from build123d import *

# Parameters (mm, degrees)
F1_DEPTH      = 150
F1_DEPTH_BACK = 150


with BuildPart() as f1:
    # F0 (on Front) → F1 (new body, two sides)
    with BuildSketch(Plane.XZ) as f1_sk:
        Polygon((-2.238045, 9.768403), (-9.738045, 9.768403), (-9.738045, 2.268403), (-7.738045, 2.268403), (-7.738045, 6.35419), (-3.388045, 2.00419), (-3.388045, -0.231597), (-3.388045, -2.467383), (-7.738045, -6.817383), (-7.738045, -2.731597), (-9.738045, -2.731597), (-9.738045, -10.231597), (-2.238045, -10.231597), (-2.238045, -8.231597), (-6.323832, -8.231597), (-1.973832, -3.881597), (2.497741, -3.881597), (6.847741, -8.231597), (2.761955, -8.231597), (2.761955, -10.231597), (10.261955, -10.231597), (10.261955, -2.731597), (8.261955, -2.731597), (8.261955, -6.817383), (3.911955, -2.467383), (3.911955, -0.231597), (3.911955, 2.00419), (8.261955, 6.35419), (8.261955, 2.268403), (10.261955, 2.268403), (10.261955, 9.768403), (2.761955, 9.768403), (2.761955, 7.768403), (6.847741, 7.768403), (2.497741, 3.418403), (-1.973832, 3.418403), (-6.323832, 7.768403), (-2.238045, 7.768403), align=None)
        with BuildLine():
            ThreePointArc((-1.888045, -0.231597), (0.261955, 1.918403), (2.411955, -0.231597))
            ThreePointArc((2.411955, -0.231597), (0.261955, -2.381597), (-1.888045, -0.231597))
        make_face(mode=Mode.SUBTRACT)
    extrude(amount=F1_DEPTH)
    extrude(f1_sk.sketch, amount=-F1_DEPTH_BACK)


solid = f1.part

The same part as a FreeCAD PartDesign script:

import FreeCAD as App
import Part
import Sketcher

V = App.Vector

doc = App.newDocument("Part")
params = doc.addObject("Spreadsheet::Sheet", "Params")
for row, (alias, value) in enumerate([
    ("sketch1_diameter", "4.3 mm"),
    ("sketch1_width", "2 mm"),
    ("sketch1_width2", "7.5 mm"),
    ("pad1_length", "150 mm"),
    ("pad1_length2", "150 mm"),
], start=1):
    params.set(f"A{row}", alias)
    params.set(f"B{row}", "=" + value)
    params.setAlias(f"B{row}", alias)

body = doc.addObject("PartDesign::Body", "Body")

# Sketch on XZ plane
sketch1 = body.newObject("Sketcher::SketchObject", "Sketch")
sketch1.AttachmentSupport = (doc.getObject("XZ_Plane"), [""])
sketch1.MapMode = "FlatFace"
sketch1.addGeometry(Part.LineSegment(V(-2.2, 9.8, 0), V(-9.7, 9.8, 0)), False)
sketch1.addGeometry(Part.LineSegment(V(-9.7, 9.8, 0), V(-9.7, 2.3, 0)), False)
sketch1.addGeometry(Part.LineSegment(V(-9.7, 2.3, 0), V(-7.7, 2.3, 0)), False)
sketch1.addGeometry(Part.LineSegment(V(-7.7, 2.3, 0), V(-7.7, 6.4, 0)), False)
sketch1.addGeometry(Part.LineSegment(V(-7.7, 6.4, 0), V(-3.4, 2, 0)), False)
sketch1.addGeometry(Part.LineSegment(V(-3.4, 2, 0), V(-3.4, -2.5, 0)), False)
sketch1.addGeometry(Part.LineSegment(V(-3.4, -2.5, 0), V(-7.7, -6.8, 0)), False)
sketch1.addGeometry(Part.LineSegment(V(-7.7, -6.8, 0), V(-7.7, -2.7, 0)), False)
sketch1.addGeometry(Part.LineSegment(V(-7.7, -2.7, 0), V(-9.7, -2.7, 0)), False)
sketch1.addGeometry(Part.LineSegment(V(-9.7, -2.7, 0), V(-9.7, -10.2, 0)), False)
sketch1.addGeometry(Part.LineSegment(V(-9.7, -10.2, 0), V(-2.2, -10.2, 0)), False)
sketch1.addGeometry(Part.LineSegment(V(-2.2, -10.2, 0), V(-2.2, -8.2, 0)), False)
sketch1.addGeometry(Part.LineSegment(V(-2.2, -8.2, 0), V(-6.3, -8.2, 0)), False)
sketch1.addGeometry(Part.LineSegment(V(-6.3, -8.2, 0), V(-2, -3.9, 0)), False)
sketch1.addGeometry(Part.LineSegment(V(-2, -3.9, 0), V(2.5, -3.9, 0)), False)
sketch1.addGeometry(Part.LineSegment(V(2.5, -3.9, 0), V(6.8, -8.2, 0)), False)
sketch1.addGeometry(Part.LineSegment(V(6.8, -8.2, 0), V(2.8, -8.2, 0)), False)
sketch1.addGeometry(Part.LineSegment(V(2.8, -8.2, 0), V(2.8, -10.2, 0)), False)
sketch1.addGeometry(Part.LineSegment(V(2.8, -10.2, 0), V(10.3, -10.2, 0)), False)
sketch1.addGeometry(Part.LineSegment(V(10.3, -10.2, 0), V(10.3, -2.7, 0)), False)
sketch1.addGeometry(Part.LineSegment(V(10.3, -2.7, 0), V(8.3, -2.7, 0)), False)
sketch1.addGeometry(Part.LineSegment(V(8.3, -2.7, 0), V(8.3, -6.8, 0)), False)
sketch1.addGeometry(Part.LineSegment(V(8.3, -6.8, 0), V(3.9, -2.5, 0)), False)
sketch1.addGeometry(Part.LineSegment(V(3.9, -2.5, 0), V(3.9, 2, 0)), False)
sketch1.addGeometry(Part.LineSegment(V(3.9, 2, 0), V(8.3, 6.4, 0)), False)
sketch1.addGeometry(Part.LineSegment(V(8.3, 6.4, 0), V(8.3, 2.3, 0)), False)
sketch1.addGeometry(Part.LineSegment(V(8.3, 2.3, 0), V(10.3, 2.3, 0)), False)
sketch1.addGeometry(Part.LineSegment(V(10.3, 2.3, 0), V(10.3, 9.8, 0)), False)
sketch1.addGeometry(Part.LineSegment(V(10.3, 9.8, 0), V(2.8, 9.8, 0)), False)
sketch1.addGeometry(Part.LineSegment(V(2.8, 9.8, 0), V(2.8, 7.8, 0)), False)
sketch1.addGeometry(Part.LineSegment(V(2.8, 7.8, 0), V(6.8, 7.8, 0)), False)
sketch1.addGeometry(Part.LineSegment(V(6.8, 7.8, 0), V(2.5, 3.4, 0)), False)
sketch1.addGeometry(Part.LineSegment(V(2.5, 3.4, 0), V(-2, 3.4, 0)), False)
sketch1.addGeometry(Part.LineSegment(V(-2, 3.4, 0), V(-6.3, 7.8, 0)), False)
sketch1.addGeometry(Part.LineSegment(V(-6.3, 7.8, 0), V(-2.2, 7.8, 0)), False)
sketch1.addGeometry(Part.LineSegment(V(-2.2, 7.8, 0), V(-2.2, 9.8, 0)), False)
sketch1.addGeometry(Part.Circle(V(0.3, -0.2, 0), V(0, 0, 1), 2.1), False)
sketch1.addConstraint(Sketcher.Constraint("Coincident", 0, 2, 1, 1))
sketch1.addConstraint(Sketcher.Constraint("Coincident", 1, 2, 2, 1))
sketch1.addConstraint(Sketcher.Constraint("Coincident", 2, 2, 3, 1))
sketch1.addConstraint(Sketcher.Constraint("Coincident", 3, 2, 4, 1))
sketch1.addConstraint(Sketcher.Constraint("Coincident", 4, 2, 5, 1))
sketch1.addConstraint(Sketcher.Constraint("Coincident", 5, 2, 6, 1))
sketch1.addConstraint(Sketcher.Constraint("Coincident", 6, 2, 7, 1))
sketch1.addConstraint(Sketcher.Constraint("Coincident", 7, 2, 8, 1))
sketch1.addConstraint(Sketcher.Constraint("Coincident", 8, 2, 9, 1))
sketch1.addConstraint(Sketcher.Constraint("Coincident", 9, 2, 10, 1))
sketch1.addConstraint(Sketcher.Constraint("Coincident", 10, 2, 11, 1))
sketch1.addConstraint(Sketcher.Constraint("Coincident", 11, 2, 12, 1))
sketch1.addConstraint(Sketcher.Constraint("Coincident", 12, 2, 13, 1))
sketch1.addConstraint(Sketcher.Constraint("Coincident", 13, 2, 14, 1))
sketch1.addConstraint(Sketcher.Constraint("Coincident", 14, 2, 15, 1))
sketch1.addConstraint(Sketcher.Constraint("Coincident", 15, 2, 16, 1))
sketch1.addConstraint(Sketcher.Constraint("Coincident", 16, 2, 17, 1))
sketch1.addConstraint(Sketcher.Constraint("Coincident", 17, 2, 18, 1))
sketch1.addConstraint(Sketcher.Constraint("Coincident", 18, 2, 19, 1))
sketch1.addConstraint(Sketcher.Constraint("Coincident", 19, 2, 20, 1))
sketch1.addConstraint(Sketcher.Constraint("Coincident", 20, 2, 21, 1))
sketch1.addConstraint(Sketcher.Constraint("Coincident", 21, 2, 22, 1))
sketch1.addConstraint(Sketcher.Constraint("Coincident", 22, 2, 23, 1))
sketch1.addConstraint(Sketcher.Constraint("Coincident", 23, 2, 24, 1))
sketch1.addConstraint(Sketcher.Constraint("Coincident", 24, 2, 25, 1))
sketch1.addConstraint(Sketcher.Constraint("Coincident", 25, 2, 26, 1))
sketch1.addConstraint(Sketcher.Constraint("Coincident", 26, 2, 27, 1))
sketch1.addConstraint(Sketcher.Constraint("Coincident", 27, 2, 28, 1))
sketch1.addConstraint(Sketcher.Constraint("Coincident", 28, 2, 29, 1))
sketch1.addConstraint(Sketcher.Constraint("Coincident", 29, 2, 30, 1))
sketch1.addConstraint(Sketcher.Constraint("Coincident", 30, 2, 31, 1))
sketch1.addConstraint(Sketcher.Constraint("Coincident", 31, 2, 32, 1))
sketch1.addConstraint(Sketcher.Constraint("Coincident", 32, 2, 33, 1))
sketch1.addConstraint(Sketcher.Constraint("Coincident", 33, 2, 34, 1))
sketch1.addConstraint(Sketcher.Constraint("Coincident", 34, 2, 35, 1))
sketch1.addConstraint(Sketcher.Constraint("Coincident", 35, 2, 0, 1))
sketch1.addConstraint(Sketcher.Constraint("Horizontal", 0))
sketch1.addConstraint(Sketcher.Constraint("Vertical", 1))
sketch1.addConstraint(Sketcher.Constraint("Horizontal", 2))
sketch1.addConstraint(Sketcher.Constraint("Vertical", 3))
sketch1.addConstraint(Sketcher.Constraint("Vertical", 5))
sketch1.addConstraint(Sketcher.Constraint("Vertical", 7))
sketch1.addConstraint(Sketcher.Constraint("Horizontal", 8))
sketch1.addConstraint(Sketcher.Constraint("Vertical", 9))
sketch1.addConstraint(Sketcher.Constraint("Horizontal", 10))
sketch1.addConstraint(Sketcher.Constraint("Vertical", 11))
sketch1.addConstraint(Sketcher.Constraint("Horizontal", 12))
sketch1.addConstraint(Sketcher.Constraint("Horizontal", 14))
sketch1.addConstraint(Sketcher.Constraint("Horizontal", 16))
sketch1.addConstraint(Sketcher.Constraint("Vertical", 17))
sketch1.addConstraint(Sketcher.Constraint("Horizontal", 18))
sketch1.addConstraint(Sketcher.Constraint("Vertical", 19))
sketch1.addConstraint(Sketcher.Constraint("Horizontal", 20))
sketch1.addConstraint(Sketcher.Constraint("Vertical", 21))
sketch1.addConstraint(Sketcher.Constraint("Vertical", 23))
sketch1.addConstraint(Sketcher.Constraint("Vertical", 25))
sketch1.addConstraint(Sketcher.Constraint("Horizontal", 26))
sketch1.addConstraint(Sketcher.Constraint("Vertical", 27))
sketch1.addConstraint(Sketcher.Constraint("Horizontal", 28))
sketch1.addConstraint(Sketcher.Constraint("Vertical", 29))
sketch1.addConstraint(Sketcher.Constraint("Horizontal", 30))
sketch1.addConstraint(Sketcher.Constraint("Horizontal", 32))
sketch1.addConstraint(Sketcher.Constraint("Horizontal", 34))
sketch1.addConstraint(Sketcher.Constraint("Vertical", 35))
sketch1.addConstraint(Sketcher.Constraint("Perpendicular", 4, 6))
sketch1.addConstraint(Sketcher.Constraint("Parallel", 6, 13))
sketch1.addConstraint(Sketcher.Constraint("Perpendicular", 13, 15))
sketch1.addConstraint(Sketcher.Constraint("Parallel", 15, 22))
sketch1.addConstraint(Sketcher.Constraint("Perpendicular", 22, 24))
sketch1.addConstraint(Sketcher.Constraint("Parallel", 24, 31))
sketch1.addConstraint(Sketcher.Constraint("Perpendicular", 31, 33))
sketch1.addConstraint(Sketcher.Constraint("Horizontal", 12, 2, 15, 2))
sketch1.addConstraint(Sketcher.Constraint("Horizontal", 10, 2, 17, 2))
sketch1.addConstraint(Sketcher.Constraint("Horizontal", 8, 2, 19, 2))
sketch1.addConstraint(Sketcher.Constraint("Horizontal", 6, 2, 21, 2))
sketch1.addConstraint(Sketcher.Constraint("Horizontal", 5, 2, 22, 2))
sketch1.addConstraint(Sketcher.Constraint("Horizontal", 4, 2, 23, 2))
sketch1.addConstraint(Sketcher.Constraint("Horizontal", 3, 2, 24, 2))
sketch1.addConstraint(Sketcher.Constraint("Horizontal", 2, 2, 25, 2))
sketch1.addConstraint(Sketcher.Constraint("Horizontal", 0, 2, 27, 2))
sketch1.addConstraint(Sketcher.Constraint("Horizontal", 30, 2, 33, 2))
sketch1.addConstraint(Sketcher.Constraint("Vertical", 3, 2, 6, 2))
sketch1.addConstraint(Sketcher.Constraint("Vertical", 1, 2, 8, 2))
sketch1.addConstraint(Sketcher.Constraint("Vertical", 21, 2, 24, 2))
sketch1.addConstraint(Sketcher.Constraint("Vertical", 19, 2, 26, 2))
sketch1.addConstraint(Sketcher.Constraint("Vertical", 17, 2, 28, 2))
sketch1.addConstraint(Sketcher.Constraint("Vertical", 15, 2, 30, 2))
sketch1.addConstraint(Sketcher.Constraint("Vertical", 14, 2, 31, 2))
sketch1.addConstraint(Sketcher.Constraint("Vertical", 13, 2, 32, 2))
sketch1.addConstraint(Sketcher.Constraint("Vertical", 11, 2, 34, 2))
sketch1.addConstraint(Sketcher.Constraint("Equal", 12, 16))
sketch1.addConstraint(Sketcher.Constraint("Equal", 10, 18))
sketch1.addConstraint(Sketcher.Constraint("Equal", 8, 20))
sketch1.addConstraint(Sketcher.Constraint("Equal", 28, 1))
sketch1.addConstraint(Sketcher.Constraint("Equal", 34, 3))
sketch1.addConstraint(Sketcher.Constraint("Equal", 32, 5))
sketch1.addConstraint(Sketcher.Constraint("Equal", 3, 7))
sketch1.addConstraint(Sketcher.Constraint("Equal", 1, 9))
sketch1.addConstraint(Sketcher.Constraint("Equal", 26, 11))
sketch1.addConstraint(Sketcher.Constraint("Equal", 17, 29))
sketch1.addConstraint(Sketcher.Constraint("Equal", 6, 13))
sketch1.addConstraint(Sketcher.Constraint("Diameter", 36, 4.3))
sketch1.addConstraint(Sketcher.Constraint("DistanceX", 2, 1, 2, 2, 2.0))
sketch1.addConstraint(Sketcher.Constraint("DistanceX", 0, 2, 0, 1, 7.5))
sketch1.addConstraint(Sketcher.Constraint("DistanceX", 0, 2, 36, 3, 10.0))
sketch1.addConstraint(Sketcher.Constraint("DistanceY", 36, 3, 0, 2, 10.0))
sketch1.addConstraint(Sketcher.Constraint("DistanceY", 7, 2, 2, 2, 5.0))
sketch1.addConstraint(Sketcher.Constraint("DistanceX", 4, 2, 23, 2, 7.3))
sketch1.addConstraint(Sketcher.Constraint("DistanceX", 12, 2, 12, 1, 4.085787))
sketch1.addConstraint(Sketcher.Constraint("DistanceY", -1, 1, 3, 2, 6.35419))
sketch1.addConstraint(Sketcher.Constraint("DistanceX", -1, 1, 14, 2, 2.497741))
sketch1.setExpression("Constraints[101]", "Params.sketch1_diameter")
sketch1.setExpression("Constraints[102]", "Params.sketch1_width")
sketch1.setExpression("Constraints[103]", "Params.sketch1_width2")
pad1 = body.newObject("PartDesign::Pad", "Pad")
pad1.Profile = sketch1
pad1.Type = "TwoLengths"
pad1.setExpression("Length", "Params.pad1_length")
pad1.setExpression("Length2", "Params.pad1_length2")

doc.recompute()
